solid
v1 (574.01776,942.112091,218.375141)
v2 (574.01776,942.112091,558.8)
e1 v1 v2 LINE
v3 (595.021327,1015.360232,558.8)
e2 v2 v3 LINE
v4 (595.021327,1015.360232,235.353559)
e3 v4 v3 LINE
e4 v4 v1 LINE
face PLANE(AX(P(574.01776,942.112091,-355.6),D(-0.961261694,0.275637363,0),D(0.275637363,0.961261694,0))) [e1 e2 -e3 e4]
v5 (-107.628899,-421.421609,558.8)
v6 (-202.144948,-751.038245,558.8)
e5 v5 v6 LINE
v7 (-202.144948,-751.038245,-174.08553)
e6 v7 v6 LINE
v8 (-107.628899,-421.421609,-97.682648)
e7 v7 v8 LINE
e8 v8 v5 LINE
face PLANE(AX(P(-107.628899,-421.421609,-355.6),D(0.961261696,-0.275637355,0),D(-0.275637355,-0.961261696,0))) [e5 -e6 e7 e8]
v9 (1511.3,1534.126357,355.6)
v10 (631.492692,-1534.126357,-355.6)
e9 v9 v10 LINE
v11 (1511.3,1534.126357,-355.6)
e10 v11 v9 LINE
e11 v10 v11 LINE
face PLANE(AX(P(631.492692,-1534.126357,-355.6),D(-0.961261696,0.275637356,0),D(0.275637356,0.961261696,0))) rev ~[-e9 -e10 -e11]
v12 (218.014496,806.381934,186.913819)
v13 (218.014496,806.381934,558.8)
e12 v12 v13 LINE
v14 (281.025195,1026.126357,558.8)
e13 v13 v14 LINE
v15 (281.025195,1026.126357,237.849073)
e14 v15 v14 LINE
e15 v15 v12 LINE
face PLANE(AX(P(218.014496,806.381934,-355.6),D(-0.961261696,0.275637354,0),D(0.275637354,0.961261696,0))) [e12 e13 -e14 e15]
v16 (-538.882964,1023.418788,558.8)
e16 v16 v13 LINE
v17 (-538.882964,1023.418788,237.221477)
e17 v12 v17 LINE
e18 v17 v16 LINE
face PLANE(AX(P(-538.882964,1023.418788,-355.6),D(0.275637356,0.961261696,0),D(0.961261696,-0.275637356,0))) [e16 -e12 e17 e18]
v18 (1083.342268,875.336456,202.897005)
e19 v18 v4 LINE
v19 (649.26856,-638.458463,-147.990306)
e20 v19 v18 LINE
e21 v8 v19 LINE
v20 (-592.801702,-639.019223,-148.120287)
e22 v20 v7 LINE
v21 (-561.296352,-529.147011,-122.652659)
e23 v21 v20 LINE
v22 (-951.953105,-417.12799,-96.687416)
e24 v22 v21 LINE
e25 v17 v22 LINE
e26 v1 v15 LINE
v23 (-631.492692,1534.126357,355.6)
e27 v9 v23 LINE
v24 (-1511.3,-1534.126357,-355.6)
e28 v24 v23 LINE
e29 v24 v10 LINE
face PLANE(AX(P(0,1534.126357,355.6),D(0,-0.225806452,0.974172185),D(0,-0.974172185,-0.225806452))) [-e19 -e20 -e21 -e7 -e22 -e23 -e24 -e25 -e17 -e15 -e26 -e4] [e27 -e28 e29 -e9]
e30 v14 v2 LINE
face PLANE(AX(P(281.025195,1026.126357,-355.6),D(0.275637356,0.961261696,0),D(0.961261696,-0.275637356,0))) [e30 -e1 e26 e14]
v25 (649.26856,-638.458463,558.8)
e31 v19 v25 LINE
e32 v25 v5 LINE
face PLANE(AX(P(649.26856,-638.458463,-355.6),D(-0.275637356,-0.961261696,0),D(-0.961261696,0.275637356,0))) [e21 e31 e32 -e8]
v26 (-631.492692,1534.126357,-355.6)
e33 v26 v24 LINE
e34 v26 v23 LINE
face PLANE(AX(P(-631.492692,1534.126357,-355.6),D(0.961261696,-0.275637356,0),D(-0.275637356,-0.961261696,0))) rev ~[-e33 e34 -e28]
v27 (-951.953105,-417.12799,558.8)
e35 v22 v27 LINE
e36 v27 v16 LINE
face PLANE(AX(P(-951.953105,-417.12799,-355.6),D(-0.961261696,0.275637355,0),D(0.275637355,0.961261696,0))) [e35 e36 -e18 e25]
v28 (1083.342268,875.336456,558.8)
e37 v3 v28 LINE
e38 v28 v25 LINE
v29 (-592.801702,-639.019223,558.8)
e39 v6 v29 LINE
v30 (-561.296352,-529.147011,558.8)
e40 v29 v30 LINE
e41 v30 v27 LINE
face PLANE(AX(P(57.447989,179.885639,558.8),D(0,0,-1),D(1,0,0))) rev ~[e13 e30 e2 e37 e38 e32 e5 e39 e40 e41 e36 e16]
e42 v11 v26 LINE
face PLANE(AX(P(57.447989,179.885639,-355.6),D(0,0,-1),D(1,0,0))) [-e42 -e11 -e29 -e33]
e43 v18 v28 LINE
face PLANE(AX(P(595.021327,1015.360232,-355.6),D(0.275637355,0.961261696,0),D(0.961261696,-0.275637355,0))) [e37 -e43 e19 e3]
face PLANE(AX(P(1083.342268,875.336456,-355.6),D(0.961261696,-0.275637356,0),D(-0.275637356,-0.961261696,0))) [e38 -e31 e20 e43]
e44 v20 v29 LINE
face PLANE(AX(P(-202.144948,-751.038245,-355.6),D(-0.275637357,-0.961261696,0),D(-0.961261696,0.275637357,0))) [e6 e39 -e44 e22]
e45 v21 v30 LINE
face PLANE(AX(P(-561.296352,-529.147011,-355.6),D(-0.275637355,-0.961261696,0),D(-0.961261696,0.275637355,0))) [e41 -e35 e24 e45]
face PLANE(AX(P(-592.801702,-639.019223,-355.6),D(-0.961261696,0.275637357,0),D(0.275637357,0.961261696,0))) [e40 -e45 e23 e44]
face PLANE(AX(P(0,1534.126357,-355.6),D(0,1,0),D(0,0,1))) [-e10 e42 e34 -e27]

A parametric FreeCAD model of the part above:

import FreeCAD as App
import Part
import Sketcher

V = App.Vector
Q = App.Units.Quantity

doc = App.newDocument("Part")
body = doc.addObject("PartDesign::Body", "Body")

# Sketch on YZ plane
sketch1 = body.newObject("Sketcher::SketchObject", "Sketch")
sketch1.AttachmentSupport = (doc.getObject("YZ_Plane"), [""])
sketch1.MapMode = "FlatFace"
sketch1.addGeometry([
    Part.LineSegment(V(1534, 356, 0), V(-1534, -356, 0)),
    Part.LineSegment(V(-1534, -356, 0), V(1534, -356, 0)),
    Part.LineSegment(V(1534, -356, 0), V(1534, 356, 0)),
], False)
sketch1.addConstraint([
    Sketcher.Constraint("Coincident", 0, 2, 1, 1),
    Sketcher.Constraint("Coincident", 1, 2, 2, 1),
    Sketcher.Constraint("Coincident", 2, 2, 0, 1),
    Sketcher.Constraint("Horizontal", 1),
    Sketcher.Constraint("Vertical", 2),
    Sketcher.Constraint("Symmetric", 0, 2, 2, 2, -1, 1),
    Sketcher.Constraint("DistanceY", 2, 1, 2, 2, Q("28 in")),
    Sketcher.Constraint("Distance", 0, Q("124 in")),
])
pad1 = body.newObject("PartDesign::Pad", "Pad")
pad1.Profile = sketch1
pad1.Length = Q("119 in")
pad1.Midplane = True

# Sketch on XY plane
sketch2 = body.newObject("Sketcher::SketchObject", "Sketch001")
sketch2.AttachmentSupport = (doc.getObject("XY_Plane"), [""])
sketch2.MapMode = "FlatFace"
sketch2.AttachmentOffset = App.Placement(V(0, 0, -14 * 25.4), App.Rotation())
sketch2.addGeometry([
    Part.LineSegment(V(631, -1534, 0), V(1511, 1534, 0)),  # 0
    Part.LineSegment(V(1511, 1534, 0), V(1511, -1534, 0)),  # 1
    Part.LineSegment(V(1511, -1534, 0), V(631, -1534, 0)),  # 2
    Part.LineSegment(V(-631, 1534, 0), V(-1511, -1534, 0)),  # 3
    Part.LineSegment(V(-1511, -1534, 0), V(-1511, 1534, 0)),  # 4
    Part.LineSegment(V(-1511, 1534, 0), V(-631, 1534, 0)),  # 5
], False)
sketch2.addConstraint([
    Sketcher.Constraint("Coincident", 0, 2, 1, 1),
    Sketcher.Constraint("Coincident", 1, 2, 2, 1),
    Sketcher.Constraint("Coincident", 2, 2, 0, 1),
    Sketcher.Constraint("Coincident", 3, 2, 4, 1),
    Sketcher.Constraint("Coincident", 4, 2, 5, 1),
    Sketcher.Constraint("Coincident", 5, 2, 3, 1),
    Sketcher.Constraint("Vertical", 1),
    Sketcher.Constraint("Horizontal", 2),
    Sketcher.Constraint("Vertical", 4),
    Sketcher.Constraint("Horizontal", 5),
    Sketcher.Constraint("Symmetric", 0, 2, 3, 2, -1, 1),
    Sketcher.Constraint("Symmetric", 2, 2, 5, 2, -1, 1),
    Sketcher.Constraint("Horizontal", 2, 2, 3, 2),
    Sketcher.Constraint("Angle", 0, Q("74 deg")),
    Sketcher.Constraint("DistanceX", 3, 2, 1, 2, Q("119 in")),
    Sketcher.Constraint("DistanceX", 2, 2, 2, 1, 879.807308),
])
pocket1 = body.newObject("PartDesign::Pocket", "Pocket")
pocket1.Profile = sketch2
pocket1.Type = "ThroughAll"
pocket1.Reversed = True

# Sketch on XY plane
sketch3 = body.newObject("Sketcher::SketchObject", "Sketch002")
sketch3.AttachmentSupport = (doc.getObject("XY_Plane"), [""])
sketch3.MapMode = "FlatFace"
sketch3.AttachmentOffset = App.Placement(V(0, 0, -14 * 25.4), App.Rotation())
sketch3.addGeometry([
    Part.LineSegment(V(-952, -417, 0), V(-539, 1023, 0)),  # 0
    Part.LineSegment(V(-539, 1023, 0), V(218, 806, 0)),  # 1
    Part.LineSegment(V(218, 806, 0), V(281, 1026, 0)),  # 2
    Part.LineSegment(V(281, 1026, 0), V(574, 942, 0)),  # 3
    Part.LineSegment(V(574, 942, 0), V(595, 1015, 0)),  # 4
    Part.LineSegment(V(595, 1015, 0), V(1083, 875, 0)),  # 5
    Part.LineSegment(V(1083, 875, 0), V(649, -638, 0)),  # 6
    Part.LineSegment(V(649, -638, 0), V(-108, -421, 0)),  # 7
    Part.LineSegment(V(-108, -421, 0), V(-202, -751, 0)),  # 8
    Part.LineSegment(V(-202, -751, 0), V(-593, -639, 0)),  # 9
    Part.LineSegment(V(-593, -639, 0), V(-561, -529, 0)),  # 10
    Part.LineSegment(V(-561, -529, 0), V(-952, -417, 0)),  # 11
], False)
sketch3.addConstraint([
    Sketcher.Constraint("Coincident", 0, 2, 1, 1),
    Sketcher.Constraint("Coincident", 1, 2, 2, 1),
    Sketcher.Constraint("Coincident", 2, 2, 3, 1),
    Sketcher.Constraint("Coincident", 3, 2, 4, 1),
    Sketcher.Constraint("Coincident", 4, 2, 5, 1),
    Sketcher.Constraint("Coincident", 5, 2, 6, 1),
    Sketcher.Constraint("Coincident", 6, 2, 7, 1),
    Sketcher.Constraint("Coincident", 7, 2, 8, 1),
    Sketcher.Constraint("Coincident", 8, 2, 9, 1),
    Sketcher.Constraint("Coincident", 9, 2, 10, 1),
    Sketcher.Constraint("Coincident", 10, 2, 11, 1),
    Sketcher.Constraint("Coincident", 11, 2, 0, 1),
    Sketcher.Constraint("Perpendicular", 0, 1),
    Sketcher.Constraint("Perpendicular", 1, 2),
    Sketcher.Constraint("Perpendicular", 2, 3),
    Sketcher.Constraint("Perpendicular", 3, 4),
    Sketcher.Constraint("Perpendicular", 4, 5),
    Sketcher.Constraint("Perpendicular", 5, 6),
    Sketcher.Constraint("Perpendicular", 6, 7),
    Sketcher.Constraint("Perpendicular", 7, 8),
    Sketcher.Constraint("Perpendicular", 8, 9),
    Sketcher.Constraint("Perpendicular", 9, 10),
    Sketcher.Constraint("Perpendicular", 10, 11),
    Sketcher.Constraint("Equal", 1, 7),
    Sketcher.Constraint("Equal", 9, 11),
    Sketcher.Constraint("Distance", 0, Q("59 in")),
    Sketcher.Constraint("Distance", 1, Q("31 in")),
    Sketcher.Constraint("Distance", 2, Q("9 in")),
    Sketcher.Constraint("Distance", 3, Q("12 in")),
    Sketcher.Constraint("Distance", 4, Q("3 in")),
    Sketcher.Constraint("Distance", 5, Q("20 in")),
    Sketcher.Constraint("Distance", 6, Q("62 in")),
    Sketcher.Constraint("Angle", 0, Q("74 deg")),
    Sketcher.Constraint("Distance", 8, Q("13.5 in")),
    Sketcher.Constraint("DistanceX", 7, 2, -1, 1, 107.628899),
    Sketcher.Constraint("DistanceY", -1, 1, 0, 2, 1023.418788),
])
pad2 = body.newObject("PartDesign::Pad", "Pad001")
pad2.Profile = sketch3
pad2.Length = Q("36 in")

doc.recompute()
